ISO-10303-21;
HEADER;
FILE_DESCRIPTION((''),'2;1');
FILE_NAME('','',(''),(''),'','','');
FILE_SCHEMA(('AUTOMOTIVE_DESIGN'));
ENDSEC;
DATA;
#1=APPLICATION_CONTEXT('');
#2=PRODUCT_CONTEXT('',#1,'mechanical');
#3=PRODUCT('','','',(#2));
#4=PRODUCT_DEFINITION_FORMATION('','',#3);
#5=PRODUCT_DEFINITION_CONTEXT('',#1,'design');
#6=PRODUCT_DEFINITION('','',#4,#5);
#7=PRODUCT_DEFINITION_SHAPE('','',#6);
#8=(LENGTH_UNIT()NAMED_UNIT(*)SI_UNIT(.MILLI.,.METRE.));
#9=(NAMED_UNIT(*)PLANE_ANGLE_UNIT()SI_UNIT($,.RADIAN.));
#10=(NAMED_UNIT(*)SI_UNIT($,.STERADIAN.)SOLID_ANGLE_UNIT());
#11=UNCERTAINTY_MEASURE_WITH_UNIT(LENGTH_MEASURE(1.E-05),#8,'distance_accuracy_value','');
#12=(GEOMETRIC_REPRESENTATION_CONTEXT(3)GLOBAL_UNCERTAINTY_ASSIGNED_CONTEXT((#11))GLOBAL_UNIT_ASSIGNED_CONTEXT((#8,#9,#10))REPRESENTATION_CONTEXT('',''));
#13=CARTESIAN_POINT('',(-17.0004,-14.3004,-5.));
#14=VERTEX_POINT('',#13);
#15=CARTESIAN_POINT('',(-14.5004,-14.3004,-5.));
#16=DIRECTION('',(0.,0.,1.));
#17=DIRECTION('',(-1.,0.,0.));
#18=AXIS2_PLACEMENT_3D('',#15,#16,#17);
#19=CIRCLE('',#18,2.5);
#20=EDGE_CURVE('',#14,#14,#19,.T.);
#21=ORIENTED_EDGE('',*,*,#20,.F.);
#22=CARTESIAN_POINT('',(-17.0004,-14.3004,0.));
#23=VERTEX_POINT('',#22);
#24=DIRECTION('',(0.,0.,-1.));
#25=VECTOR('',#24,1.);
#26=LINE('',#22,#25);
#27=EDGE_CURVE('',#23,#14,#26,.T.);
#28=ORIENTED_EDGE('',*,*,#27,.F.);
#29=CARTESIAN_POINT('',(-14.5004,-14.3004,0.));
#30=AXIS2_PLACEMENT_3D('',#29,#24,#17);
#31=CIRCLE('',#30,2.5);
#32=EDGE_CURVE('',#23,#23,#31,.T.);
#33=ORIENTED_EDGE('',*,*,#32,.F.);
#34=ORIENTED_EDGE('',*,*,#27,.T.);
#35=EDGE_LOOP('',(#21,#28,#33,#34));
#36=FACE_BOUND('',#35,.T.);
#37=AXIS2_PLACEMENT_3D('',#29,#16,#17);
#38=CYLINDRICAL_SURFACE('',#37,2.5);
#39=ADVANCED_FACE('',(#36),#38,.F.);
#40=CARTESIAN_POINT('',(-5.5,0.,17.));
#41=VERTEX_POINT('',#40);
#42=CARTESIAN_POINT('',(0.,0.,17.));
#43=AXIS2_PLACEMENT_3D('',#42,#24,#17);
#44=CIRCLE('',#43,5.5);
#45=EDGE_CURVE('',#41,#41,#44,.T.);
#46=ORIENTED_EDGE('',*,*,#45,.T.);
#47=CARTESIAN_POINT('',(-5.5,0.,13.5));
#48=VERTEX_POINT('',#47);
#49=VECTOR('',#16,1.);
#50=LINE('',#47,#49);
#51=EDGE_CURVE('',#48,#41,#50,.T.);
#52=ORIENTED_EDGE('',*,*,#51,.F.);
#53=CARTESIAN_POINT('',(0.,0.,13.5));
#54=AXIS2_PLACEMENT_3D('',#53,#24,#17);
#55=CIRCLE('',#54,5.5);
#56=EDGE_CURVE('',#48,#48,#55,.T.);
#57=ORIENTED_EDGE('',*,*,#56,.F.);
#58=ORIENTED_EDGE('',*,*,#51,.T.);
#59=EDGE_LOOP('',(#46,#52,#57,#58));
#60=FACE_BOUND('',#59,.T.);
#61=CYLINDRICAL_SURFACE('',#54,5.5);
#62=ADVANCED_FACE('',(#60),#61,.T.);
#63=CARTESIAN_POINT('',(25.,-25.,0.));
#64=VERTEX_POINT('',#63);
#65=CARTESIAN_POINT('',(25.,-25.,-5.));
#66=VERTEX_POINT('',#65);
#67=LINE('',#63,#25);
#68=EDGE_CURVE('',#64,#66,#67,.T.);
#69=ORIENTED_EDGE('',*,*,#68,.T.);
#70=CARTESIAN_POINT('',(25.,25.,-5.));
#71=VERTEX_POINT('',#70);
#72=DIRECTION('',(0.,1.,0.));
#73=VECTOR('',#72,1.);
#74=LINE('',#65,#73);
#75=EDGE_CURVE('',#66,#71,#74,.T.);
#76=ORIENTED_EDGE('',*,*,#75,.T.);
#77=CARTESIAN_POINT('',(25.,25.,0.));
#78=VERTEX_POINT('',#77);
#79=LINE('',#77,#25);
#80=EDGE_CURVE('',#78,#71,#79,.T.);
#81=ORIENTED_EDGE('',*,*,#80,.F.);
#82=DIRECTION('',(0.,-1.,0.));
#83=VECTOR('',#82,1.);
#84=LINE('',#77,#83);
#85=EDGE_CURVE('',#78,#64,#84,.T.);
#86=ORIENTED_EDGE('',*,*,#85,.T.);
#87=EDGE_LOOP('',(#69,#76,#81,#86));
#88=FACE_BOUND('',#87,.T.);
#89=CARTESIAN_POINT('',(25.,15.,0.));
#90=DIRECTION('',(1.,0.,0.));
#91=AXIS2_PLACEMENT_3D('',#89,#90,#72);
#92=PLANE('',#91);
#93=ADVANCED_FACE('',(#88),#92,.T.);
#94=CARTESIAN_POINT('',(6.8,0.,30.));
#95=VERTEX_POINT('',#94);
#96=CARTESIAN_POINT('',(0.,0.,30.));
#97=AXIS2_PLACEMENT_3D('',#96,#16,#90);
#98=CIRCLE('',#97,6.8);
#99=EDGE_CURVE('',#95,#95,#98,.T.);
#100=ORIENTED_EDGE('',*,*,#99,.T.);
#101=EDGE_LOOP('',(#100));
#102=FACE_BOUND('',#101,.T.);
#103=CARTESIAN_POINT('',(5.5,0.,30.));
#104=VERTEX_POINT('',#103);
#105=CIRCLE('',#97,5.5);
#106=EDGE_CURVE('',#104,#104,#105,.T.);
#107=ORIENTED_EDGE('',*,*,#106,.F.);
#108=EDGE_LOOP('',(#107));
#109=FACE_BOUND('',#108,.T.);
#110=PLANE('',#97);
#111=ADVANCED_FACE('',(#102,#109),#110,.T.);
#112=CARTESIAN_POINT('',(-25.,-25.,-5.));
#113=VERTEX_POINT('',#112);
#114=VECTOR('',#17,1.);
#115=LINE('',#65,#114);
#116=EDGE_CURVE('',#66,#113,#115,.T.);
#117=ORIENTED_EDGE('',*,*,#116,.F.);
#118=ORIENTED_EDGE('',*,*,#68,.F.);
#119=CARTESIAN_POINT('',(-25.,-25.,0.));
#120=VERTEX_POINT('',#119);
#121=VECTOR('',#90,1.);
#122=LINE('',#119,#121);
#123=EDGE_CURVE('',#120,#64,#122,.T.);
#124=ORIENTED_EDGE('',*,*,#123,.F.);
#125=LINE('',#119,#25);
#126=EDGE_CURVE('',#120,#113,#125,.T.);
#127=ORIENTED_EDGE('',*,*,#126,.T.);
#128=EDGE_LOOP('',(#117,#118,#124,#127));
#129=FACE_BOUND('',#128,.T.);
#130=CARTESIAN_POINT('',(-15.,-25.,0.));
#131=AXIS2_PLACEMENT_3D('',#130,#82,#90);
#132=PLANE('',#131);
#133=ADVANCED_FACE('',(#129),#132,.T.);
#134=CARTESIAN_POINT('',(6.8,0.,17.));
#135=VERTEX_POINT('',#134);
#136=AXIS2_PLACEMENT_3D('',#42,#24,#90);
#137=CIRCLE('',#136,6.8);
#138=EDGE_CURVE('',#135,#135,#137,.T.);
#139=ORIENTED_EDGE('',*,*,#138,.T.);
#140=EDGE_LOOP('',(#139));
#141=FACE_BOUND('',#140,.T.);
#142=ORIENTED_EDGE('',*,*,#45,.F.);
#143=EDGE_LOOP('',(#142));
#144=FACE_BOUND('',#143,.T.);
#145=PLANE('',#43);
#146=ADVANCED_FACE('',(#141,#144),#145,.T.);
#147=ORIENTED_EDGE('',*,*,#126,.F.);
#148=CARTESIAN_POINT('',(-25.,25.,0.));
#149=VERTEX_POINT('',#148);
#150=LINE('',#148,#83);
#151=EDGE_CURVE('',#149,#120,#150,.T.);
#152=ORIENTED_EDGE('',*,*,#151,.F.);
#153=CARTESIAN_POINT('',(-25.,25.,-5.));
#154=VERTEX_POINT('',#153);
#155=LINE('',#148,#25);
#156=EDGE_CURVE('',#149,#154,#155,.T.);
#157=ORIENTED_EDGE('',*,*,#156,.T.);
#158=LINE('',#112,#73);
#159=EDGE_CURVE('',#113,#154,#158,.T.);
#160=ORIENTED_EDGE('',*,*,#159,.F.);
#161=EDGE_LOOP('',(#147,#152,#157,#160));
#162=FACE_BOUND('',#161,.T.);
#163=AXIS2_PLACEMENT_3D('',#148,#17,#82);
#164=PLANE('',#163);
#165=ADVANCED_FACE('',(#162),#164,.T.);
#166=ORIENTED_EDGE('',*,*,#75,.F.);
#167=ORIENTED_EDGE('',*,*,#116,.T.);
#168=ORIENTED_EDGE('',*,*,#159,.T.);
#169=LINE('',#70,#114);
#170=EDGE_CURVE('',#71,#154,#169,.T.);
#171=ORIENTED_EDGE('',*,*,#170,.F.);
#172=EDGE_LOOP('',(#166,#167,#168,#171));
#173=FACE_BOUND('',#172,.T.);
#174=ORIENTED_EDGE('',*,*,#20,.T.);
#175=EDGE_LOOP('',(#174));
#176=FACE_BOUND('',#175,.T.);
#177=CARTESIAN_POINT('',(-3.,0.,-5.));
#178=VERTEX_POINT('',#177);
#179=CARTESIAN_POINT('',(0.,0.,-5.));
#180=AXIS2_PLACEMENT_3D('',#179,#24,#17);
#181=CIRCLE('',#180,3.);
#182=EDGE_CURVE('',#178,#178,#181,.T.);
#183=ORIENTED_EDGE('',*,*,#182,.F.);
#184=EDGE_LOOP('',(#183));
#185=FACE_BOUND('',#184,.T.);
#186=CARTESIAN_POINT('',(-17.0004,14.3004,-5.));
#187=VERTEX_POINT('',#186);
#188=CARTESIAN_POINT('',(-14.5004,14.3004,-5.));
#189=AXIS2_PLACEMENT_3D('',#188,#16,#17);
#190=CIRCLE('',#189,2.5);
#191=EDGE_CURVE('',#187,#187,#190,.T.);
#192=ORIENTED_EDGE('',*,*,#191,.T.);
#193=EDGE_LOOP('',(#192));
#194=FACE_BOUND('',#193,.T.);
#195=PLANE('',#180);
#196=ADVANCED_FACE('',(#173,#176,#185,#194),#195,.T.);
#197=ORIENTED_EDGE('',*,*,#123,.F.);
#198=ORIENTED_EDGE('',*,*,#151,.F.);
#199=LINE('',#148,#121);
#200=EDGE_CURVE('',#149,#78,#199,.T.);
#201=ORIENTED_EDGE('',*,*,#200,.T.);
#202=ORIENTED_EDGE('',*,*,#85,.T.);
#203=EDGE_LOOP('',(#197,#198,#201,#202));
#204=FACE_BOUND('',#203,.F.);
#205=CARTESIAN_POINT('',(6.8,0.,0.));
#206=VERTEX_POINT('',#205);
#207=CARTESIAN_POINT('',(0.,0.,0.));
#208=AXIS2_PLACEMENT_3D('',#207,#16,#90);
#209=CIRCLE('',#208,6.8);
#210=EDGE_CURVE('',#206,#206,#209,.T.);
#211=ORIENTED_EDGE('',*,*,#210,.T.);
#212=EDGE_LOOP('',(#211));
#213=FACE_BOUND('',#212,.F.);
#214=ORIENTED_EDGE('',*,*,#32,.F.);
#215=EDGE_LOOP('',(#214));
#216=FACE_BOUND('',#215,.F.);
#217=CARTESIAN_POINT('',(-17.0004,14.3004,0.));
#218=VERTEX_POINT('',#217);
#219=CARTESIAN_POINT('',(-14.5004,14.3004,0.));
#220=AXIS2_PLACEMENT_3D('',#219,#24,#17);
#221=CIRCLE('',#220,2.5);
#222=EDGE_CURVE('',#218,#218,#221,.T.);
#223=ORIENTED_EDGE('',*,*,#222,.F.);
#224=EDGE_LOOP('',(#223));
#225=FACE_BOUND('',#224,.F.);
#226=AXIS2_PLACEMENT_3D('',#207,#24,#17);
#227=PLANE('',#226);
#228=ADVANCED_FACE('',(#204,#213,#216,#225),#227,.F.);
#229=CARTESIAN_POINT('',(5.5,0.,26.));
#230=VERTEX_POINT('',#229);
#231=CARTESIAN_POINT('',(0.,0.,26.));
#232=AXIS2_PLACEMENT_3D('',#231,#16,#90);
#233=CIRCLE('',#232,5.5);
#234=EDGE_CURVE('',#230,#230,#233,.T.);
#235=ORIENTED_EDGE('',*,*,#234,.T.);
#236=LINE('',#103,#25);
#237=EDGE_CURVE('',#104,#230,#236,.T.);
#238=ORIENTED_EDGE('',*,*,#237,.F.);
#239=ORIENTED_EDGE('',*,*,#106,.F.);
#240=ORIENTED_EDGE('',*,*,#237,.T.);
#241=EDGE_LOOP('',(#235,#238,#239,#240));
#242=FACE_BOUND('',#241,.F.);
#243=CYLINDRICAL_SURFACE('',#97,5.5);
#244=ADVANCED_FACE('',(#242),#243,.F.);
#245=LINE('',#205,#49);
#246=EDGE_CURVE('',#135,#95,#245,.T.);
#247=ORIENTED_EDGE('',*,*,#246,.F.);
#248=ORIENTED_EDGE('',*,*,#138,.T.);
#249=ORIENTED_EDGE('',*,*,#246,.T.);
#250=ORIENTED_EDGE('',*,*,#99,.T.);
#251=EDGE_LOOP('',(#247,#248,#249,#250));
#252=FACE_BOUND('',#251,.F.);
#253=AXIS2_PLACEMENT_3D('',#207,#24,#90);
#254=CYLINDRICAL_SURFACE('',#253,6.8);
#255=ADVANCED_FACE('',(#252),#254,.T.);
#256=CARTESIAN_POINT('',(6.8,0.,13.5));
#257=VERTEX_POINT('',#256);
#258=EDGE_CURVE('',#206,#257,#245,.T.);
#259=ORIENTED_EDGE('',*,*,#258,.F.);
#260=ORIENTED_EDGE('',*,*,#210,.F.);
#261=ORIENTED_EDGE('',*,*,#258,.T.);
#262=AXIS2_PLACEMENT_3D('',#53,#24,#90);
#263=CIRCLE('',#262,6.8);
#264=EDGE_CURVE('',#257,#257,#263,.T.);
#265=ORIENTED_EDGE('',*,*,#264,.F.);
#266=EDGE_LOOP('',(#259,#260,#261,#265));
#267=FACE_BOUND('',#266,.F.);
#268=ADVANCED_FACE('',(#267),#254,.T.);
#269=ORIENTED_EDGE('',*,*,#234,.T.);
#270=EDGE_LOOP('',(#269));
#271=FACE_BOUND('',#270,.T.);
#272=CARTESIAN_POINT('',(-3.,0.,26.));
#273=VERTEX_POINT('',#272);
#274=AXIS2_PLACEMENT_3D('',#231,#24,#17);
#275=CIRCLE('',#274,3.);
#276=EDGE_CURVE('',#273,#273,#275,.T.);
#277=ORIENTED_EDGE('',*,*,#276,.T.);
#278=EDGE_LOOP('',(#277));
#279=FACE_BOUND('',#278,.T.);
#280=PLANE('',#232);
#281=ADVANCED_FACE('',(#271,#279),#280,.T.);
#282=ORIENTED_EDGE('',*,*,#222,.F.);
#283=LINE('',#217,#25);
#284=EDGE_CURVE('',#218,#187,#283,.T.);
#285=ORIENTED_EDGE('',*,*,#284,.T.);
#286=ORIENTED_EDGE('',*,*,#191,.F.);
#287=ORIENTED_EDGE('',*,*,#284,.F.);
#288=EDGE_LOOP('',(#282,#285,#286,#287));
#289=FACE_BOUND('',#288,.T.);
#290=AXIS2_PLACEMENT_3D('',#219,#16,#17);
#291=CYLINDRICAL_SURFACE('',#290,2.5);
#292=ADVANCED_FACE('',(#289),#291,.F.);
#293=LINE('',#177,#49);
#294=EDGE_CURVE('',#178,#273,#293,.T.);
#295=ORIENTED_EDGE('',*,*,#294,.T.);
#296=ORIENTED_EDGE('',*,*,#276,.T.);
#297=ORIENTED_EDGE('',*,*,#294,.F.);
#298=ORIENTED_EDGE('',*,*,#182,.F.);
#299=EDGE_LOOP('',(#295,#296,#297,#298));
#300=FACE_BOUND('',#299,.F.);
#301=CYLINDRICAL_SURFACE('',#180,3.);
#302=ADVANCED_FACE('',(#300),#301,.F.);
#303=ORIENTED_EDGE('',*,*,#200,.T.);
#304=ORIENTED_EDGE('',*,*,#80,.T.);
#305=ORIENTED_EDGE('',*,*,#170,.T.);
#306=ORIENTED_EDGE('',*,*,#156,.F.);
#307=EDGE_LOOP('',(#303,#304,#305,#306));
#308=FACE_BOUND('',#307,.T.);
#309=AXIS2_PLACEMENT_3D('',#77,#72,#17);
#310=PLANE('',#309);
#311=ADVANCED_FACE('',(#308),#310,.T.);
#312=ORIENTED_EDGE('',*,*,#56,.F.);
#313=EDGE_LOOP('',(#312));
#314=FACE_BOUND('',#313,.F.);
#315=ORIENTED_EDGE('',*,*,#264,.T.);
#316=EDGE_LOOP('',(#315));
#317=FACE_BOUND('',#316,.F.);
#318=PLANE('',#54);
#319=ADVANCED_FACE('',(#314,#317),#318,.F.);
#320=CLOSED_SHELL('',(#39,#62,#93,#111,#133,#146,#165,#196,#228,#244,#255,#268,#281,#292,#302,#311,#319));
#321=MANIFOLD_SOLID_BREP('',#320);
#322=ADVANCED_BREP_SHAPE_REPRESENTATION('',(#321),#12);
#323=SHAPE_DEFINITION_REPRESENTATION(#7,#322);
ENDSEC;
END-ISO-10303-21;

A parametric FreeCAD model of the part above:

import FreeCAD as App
import Part
import Sketcher

V = App.Vector
Q = App.Units.Quantity


def add_polygon(sketch, points):
    """Adds a closed chain of lines whose ends are joined by coincident constraints."""
    first, n = sketch.GeometryCount, len(points)
    for a, b in zip(points, points[1:] + points[:1]):
        sketch.addGeometry(Part.LineSegment(App.Vector(*a, 0), App.Vector(*b, 0)), False)
    for i in range(n):
        sketch.addConstraint(Sketcher.Constraint("Coincident", first + i, 2, first + (i + 1) % n, 1))

doc = App.newDocument("Part")
body = doc.addObject("PartDesign::Body", "Body")

# Sketch on XY plane
sketch1 = doc.addObject("Sketcher::SketchObject", "Sketch")
body.addObject(sketch1)
sketch1.AttachmentSupport = (doc.XY_Plane, [""])
sketch1.MapMode = "FlatFace"
sketch1.addGeometry(Part.Circle(V(0, 0, 0), V(0, 0, 1), 7), False)
sketch1.addConstraint(Sketcher.Constraint("Coincident", 0, 3, -1, 1))
sketch1.addConstraint(Sketcher.Constraint("Diameter", 0, Q("13.6 mm")))
pad1 = doc.addObject("PartDesign::Pad", "Pad")
body.addObject(pad1)
pad1.Profile = sketch1
pad1.Length = 30

# Sketch on XY plane
sketch2 = doc.addObject("Sketcher::SketchObject", "Sketch001")
body.addObject(sketch2)
sketch2.AttachmentSupport = (doc.XY_Plane, [""])
sketch2.MapMode = "FlatFace"
sketch2.AttachmentOffset = App.Placement(V(0, 0, 13.5), App.Rotation())
sketch2.addGeometry(Part.Circle(V(0, 0, 0), V(0, 0, 1), 7), False)
sketch2.addGeometry(Part.Circle(V(0, 0, 0), V(0, 0, 1), 6), False)
sketch2.addConstraint(Sketcher.Constraint("Coincident", 0, 3, -1, 1))
sketch2.addConstraint(Sketcher.Constraint("Coincident", 1, 3, -1, 1))
sketch2.addConstraint(Sketcher.Constraint("Diameter", 0, Q("14 mm")))
sketch2.addConstraint(Sketcher.Constraint("Diameter", 1, Q("11 mm")))
pocket1 = doc.addObject("PartDesign::Pocket", "Pocket")
body.addObject(pocket1)
pocket1.Profile = sketch2
pocket1.Length = 3.5
pocket1.Reversed = True

# Sketch on XY plane
sketch3 = doc.addObject("Sketcher::SketchObject", "Sketch002")
body.addObject(sketch3)
sketch3.AttachmentSupport = (doc.XY_Plane, [""])
sketch3.MapMode = "FlatFace"
add_polygon(sketch3, [(25, 25), (25, -25), (-25, -25), (-25, 25)])  # lines 0-3
sketch3.addGeometry(Part.Circle(V(14.8, 15, 0), V(0, 0, 1), 1.9), False)  # 4
sketch3.addGeometry(Part.Circle(V(-14.5, 14.3, 0), V(0, 0, 1), 2.5), False)  # 5
sketch3.addGeometry(Part.Circle(V(-14.5, -14.3, 0), V(0, 0, 1), 2.5), False)  # 6
sketch3.addGeometry(Part.Circle(V(14.8, -15, 0), V(0, 0, 1), 1.9), False)  # 7
sketch3.addConstraint(Sketcher.Constraint("Vertical", 0))
sketch3.addConstraint(Sketcher.Constraint("Horizontal", 1))
sketch3.addConstraint(Sketcher.Constraint("Vertical", 2))
sketch3.addConstraint(Sketcher.Constraint("Horizontal", 3))
sketch3.addConstraint(Sketcher.Constraint("Equal", 5, 6))
sketch3.addConstraint(Sketcher.Constraint("Equal", 4, 7))
sketch3.addConstraint(Sketcher.Constraint("Symmetric", 0, 2, 2, 2, -1, 1))
sketch3.addConstraint(Sketcher.Constraint("Symmetric", 5, 3, 6, 3, -1))
sketch3.addConstraint(Sketcher.Constraint("Symmetric", 4, 3, 7, 3, -1))
sketch3.addConstraint(Sketcher.Constraint("Equal", 3, 0))
sketch3.addConstraint(Sketcher.Constraint("Diameter", 5, Q("5 mm")))
sketch3.addConstraint(Sketcher.Constraint("Diameter", 4, Q("3.9 mm")))
sketch3.addConstraint(Sketcher.Constraint("DistanceX", 1, 2, 1, 1, Q("50 mm")))
sketch3.addConstraint(Sketcher.Constraint("DistanceY", -1, 1, 4, 3, Q("15 mm")))
sketch3.addConstraint(Sketcher.Constraint("DistanceX", -1, 1, 4, 3, Q("14.8 mm")))
sketch3.addConstraint(Sketcher.Constraint("DistanceX", 5, 3, -1, 1, Q("14.5004 mm")))
sketch3.addConstraint(Sketcher.Constraint("DistanceY", -1, 1, 5, 3, Q("14.3004 mm")))
pad2 = doc.addObject("PartDesign::Pad", "Pad001")
body.addObject(pad2)
pad2.Profile = sketch3
pad2.Length = 5
pad2.Reversed = True

# Sketch on XY plane
sketch4 = doc.addObject("Sketcher::SketchObject", "Sketch003")
body.addObject(sketch4)
sketch4.AttachmentSupport = (doc.XY_Plane, [""])
sketch4.MapMode = "FlatFace"
sketch4.AttachmentOffset = App.Placement(V(0, 0, -5), App.Rotation())
sketch4.addGeometry(Part.Circle(V(0, 0, 0), V(0, 0, 1), 3), False)
sketch4.addConstraint(Sketcher.Constraint("Coincident", 0, 3, -1, 1))
sketch4.addConstraint(Sketcher.Constraint("Diameter", 0, Q("6 mm")))
pocket2 = doc.addObject("PartDesign::Pocket", "Pocket001")
body.addObject(pocket2)
pocket2.Profile = sketch4
pocket2.Length = 33
pocket2.Reversed = True

# Sketch on XY plane
sketch5 = doc.addObject("Sketcher::SketchObject", "Sketch004")
body.addObject(sketch5)
sketch5.AttachmentSupport = (doc.XY_Plane, [""])
sketch5.MapMode = "FlatFace"
sketch5.AttachmentOffset = App.Placement(V(0, 0, 30), App.Rotation())
sketch5.addGeometry(Part.Circle(V(0, 0, 0), V(0, 0, 1), 6), False)
sketch5.addConstraint(Sketcher.Constraint("Coincident", 0, 3, -1, 1))
sketch5.addConstraint(Sketcher.Constraint("Diameter", 0, Q("11 mm")))
pocket3 = doc.addObject("PartDesign::Pocket", "Pocket002")
body.addObject(pocket3)
pocket3.Profile = sketch5
pocket3.Length = 4

# Sketch on XY plane
sketch6 = doc.addObject("Sketcher::SketchObject", "Sketch005")
body.addObject(sketch6)
sketch6.AttachmentSupport = (doc.XY_Plane, [""])
sketch6.MapMode = "FlatFace"
sketch6.AttachmentOffset = App.Placement(V(0, 0, -5), App.Rotation())
sketch6.addGeometry(Part.Circle(V(14.8, -15, 0), V(0, 0, 1), 1.9), False)
sketch6.addGeometry(Part.Circle(V(14.8, 15, 0), V(0, 0, 1), 1.9), False)
sketch6.addConstraint(Sketcher.Constraint("Equal", 0, 1))
sketch6.addConstraint(Sketcher.Constraint("Symmetric", 0, 3, 1, 3, -1))
sketch6.addConstraint(Sketcher.Constraint("Diameter", 0, Q("3.9 mm")))
sketch6.addConstraint(Sketcher.Constraint("DistanceY", 0, 3, -1, 1, Q("15 mm")))
sketch6.addConstraint(Sketcher.Constraint("DistanceX", -1, 1, 0, 3, Q("14.8 mm")))
pad3 = doc.addObject("PartDesign::Pad", "Pad002")
body.addObject(pad3)
pad3.Profile = sketch6
pad3.Length = 5

doc.recompute()
